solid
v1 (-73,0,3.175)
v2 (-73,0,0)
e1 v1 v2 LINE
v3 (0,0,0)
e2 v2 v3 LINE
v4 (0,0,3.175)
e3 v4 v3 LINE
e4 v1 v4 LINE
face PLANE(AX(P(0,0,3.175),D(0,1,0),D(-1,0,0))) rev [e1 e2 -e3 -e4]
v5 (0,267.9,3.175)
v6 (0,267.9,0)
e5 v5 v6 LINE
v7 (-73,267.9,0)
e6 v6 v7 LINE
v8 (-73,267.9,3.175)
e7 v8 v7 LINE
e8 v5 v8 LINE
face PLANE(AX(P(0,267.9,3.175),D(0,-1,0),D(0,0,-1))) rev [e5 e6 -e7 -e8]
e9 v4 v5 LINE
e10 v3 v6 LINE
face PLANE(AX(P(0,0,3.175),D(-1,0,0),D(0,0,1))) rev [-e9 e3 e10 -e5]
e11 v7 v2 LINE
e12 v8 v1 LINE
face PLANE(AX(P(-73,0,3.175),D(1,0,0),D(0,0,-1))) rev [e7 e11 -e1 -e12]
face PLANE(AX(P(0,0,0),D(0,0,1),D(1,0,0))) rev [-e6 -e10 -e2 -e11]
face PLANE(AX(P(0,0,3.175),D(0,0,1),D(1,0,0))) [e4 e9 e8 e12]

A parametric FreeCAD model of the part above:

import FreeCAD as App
import Part
import Sketcher
Q = App.Units.Quantity

doc = App.newDocument("Part")
body = doc.addObject("PartDesign::Body", "Body")

# Sketch on XY plane
sketch1 = body.newObject("Sketcher::SketchObject", "Sketch")
sketch1.AttachmentSupport = (doc.getObject("XY_Plane"), [""])
sketch1.MapMode = "FlatFace"
sketch1.addGeometry(Part.LineSegment(App.Vector(-73, 268, 0), App.Vector(-73, 0, 0)), False)
sketch1.addGeometry(Part.LineSegment(App.Vector(-73, 0, 0), App.Vector(0, 0, 0)), False)
sketch1.addGeometry(Part.LineSegment(App.Vector(0, 0, 0), App.Vector(0, 268, 0)), False)
sketch1.addGeometry(Part.LineSegment(App.Vector(0, 268, 0), App.Vector(-73, 268, 0)), False)
sketch1.addConstraint(Sketcher.Constraint("Coincident", 0, 2, 1, 1))
sketch1.addConstraint(Sketcher.Constraint("Coincident", 1, 2, 2, 1))
sketch1.addConstraint(Sketcher.Constraint("Coincident", 2, 2, 3, 1))
sketch1.addConstraint(Sketcher.Constraint("Coincident", 3, 2, 0, 1))
sketch1.addConstraint(Sketcher.Constraint("Vertical", 0))
sketch1.addConstraint(Sketcher.Constraint("Horizontal", 1))
sketch1.addConstraint(Sketcher.Constraint("Vertical", 2))
sketch1.addConstraint(Sketcher.Constraint("Horizontal", 3))
sketch1.addConstraint(Sketcher.Constraint("Coincident", 1, 2, -1, 1))
sketch1.addConstraint(Sketcher.Constraint("DistanceX", 1, 1, 1, 2, Q("73 mm")))
sketch1.addConstraint(Sketcher.Constraint("DistanceY", 0, 2, 0, 1, Q("267.9 mm")))
pad1 = body.newObject("PartDesign::Pad", "Pad")
pad1.Profile = sketch1
pad1.Length = 3.175

doc.recompute()
